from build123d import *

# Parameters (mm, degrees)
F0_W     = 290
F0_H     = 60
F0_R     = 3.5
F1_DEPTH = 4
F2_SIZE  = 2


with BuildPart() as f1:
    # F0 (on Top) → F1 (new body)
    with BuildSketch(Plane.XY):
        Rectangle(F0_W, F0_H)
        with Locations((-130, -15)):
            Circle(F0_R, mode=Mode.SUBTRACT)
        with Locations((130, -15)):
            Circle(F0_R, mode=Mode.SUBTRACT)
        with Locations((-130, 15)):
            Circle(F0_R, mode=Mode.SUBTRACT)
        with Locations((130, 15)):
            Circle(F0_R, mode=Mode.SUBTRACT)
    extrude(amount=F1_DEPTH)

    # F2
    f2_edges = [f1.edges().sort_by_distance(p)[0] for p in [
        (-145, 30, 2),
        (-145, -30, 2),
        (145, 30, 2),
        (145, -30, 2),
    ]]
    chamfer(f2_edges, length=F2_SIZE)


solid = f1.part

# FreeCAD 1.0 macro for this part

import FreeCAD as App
import Part
import Sketcher
from FreeCAD import Vector


def edges_at(feature, points):
    """Names of the edges that pass closest to the given points."""
    edges = feature.Shape.Edges
    near = lambda p: min(range(len(edges)), key=lambda i: edges[i].distToShape(Part.Vertex(*p))[0])
    return sorted({f"Edge{near(p) + 1}" for p in points})

doc = App.newDocument("Part")
body = doc.addObject("PartDesign::Body", "Body")

# Sketch on XY plane
sketch1 = body.newObject("Sketcher::SketchObject", "Sketch")
sketch1.AttachmentSupport = (doc.getObject("XY_Plane"), [""])
sketch1.MapMode = "FlatFace"
sketch1.addGeometry([
    Part.LineSegment(Vector(-145, 30, 0), Vector(-145, -30, 0)),  # 0
    Part.LineSegment(Vector(-145, -30, 0), Vector(145, -30, 0)),  # 1
    Part.LineSegment(Vector(145, -30, 0), Vector(145, 30, 0)),  # 2
    Part.LineSegment(Vector(145, 30, 0), Vector(-145, 30, 0)),  # 3
    Part.Circle(Vector(-130, -15, 0), Vector(0, 0, 1), 3.5),  # 4
    Part.Circle(Vector(130, -15, 0), Vector(0, 0, 1), 3.5),  # 5
    Part.Circle(Vector(-130, 15, 0), Vector(0, 0, 1), 3.5),  # 6
    Part.Circle(Vector(130, 15, 0), Vector(0, 0, 1), 3.5),  # 7
], False)
sketch1.addConstraint([
    Sketcher.Constraint("Coincident", 0, 2, 1, 1),
    Sketcher.Constraint("Coincident", 1, 2, 2, 1),
    Sketcher.Constraint("Coincident", 2, 2, 3, 1),
    Sketcher.Constraint("Coincident", 3, 2, 0, 1),
    Sketcher.Constraint("Vertical", 0),
    Sketcher.Constraint("Horizontal", 1),
    Sketcher.Constraint("Vertical", 2),
    Sketcher.Constraint("Horizontal", 3),
    Sketcher.Constraint("Equal", 4, 5),
    Sketcher.Constraint("Equal", 5, 6),
    Sketcher.Constraint("Equal", 6, 7),
    Sketcher.Constraint("Symmetric", 5, 3, 6, 3, -1, 1),
    Sketcher.Constraint("Symmetric", 4, 3, 7, 3, -1, 1),
    Sketcher.Constraint("Symmetric", 0, 2, 2, 2, -1, 1),
    Sketcher.Constraint("Symmetric", 4, 3, 5, 3, -2),
    Sketcher.Constraint("Diameter", 4, 7.0),
    Sketcher.Constraint("DistanceX", 1, 1, 1, 2, 290.0),
    Sketcher.Constraint("DistanceY", 0, 2, 0, 1, 60.0),
    Sketcher.Constraint("DistanceX", 4, 3, -1, 1, 130.0),
    Sketcher.Constraint("DistanceY", 4, 3, -1, 1, 15.0),
])
pad1 = body.newObject("PartDesign::Pad", "Pad")
pad1.Profile = sketch1
pad1.Length = 4
doc.recompute()

chamfer = body.newObject("PartDesign::Chamfer", "Chamfer")
chamfer.Base = (pad1, edges_at(pad1, [
    (-145, 30, 2),
    (-145, -30, 2),
    (145, 30, 2),
    (145, -30, 2),
]))
chamfer.Size = 2

doc.recompute()
